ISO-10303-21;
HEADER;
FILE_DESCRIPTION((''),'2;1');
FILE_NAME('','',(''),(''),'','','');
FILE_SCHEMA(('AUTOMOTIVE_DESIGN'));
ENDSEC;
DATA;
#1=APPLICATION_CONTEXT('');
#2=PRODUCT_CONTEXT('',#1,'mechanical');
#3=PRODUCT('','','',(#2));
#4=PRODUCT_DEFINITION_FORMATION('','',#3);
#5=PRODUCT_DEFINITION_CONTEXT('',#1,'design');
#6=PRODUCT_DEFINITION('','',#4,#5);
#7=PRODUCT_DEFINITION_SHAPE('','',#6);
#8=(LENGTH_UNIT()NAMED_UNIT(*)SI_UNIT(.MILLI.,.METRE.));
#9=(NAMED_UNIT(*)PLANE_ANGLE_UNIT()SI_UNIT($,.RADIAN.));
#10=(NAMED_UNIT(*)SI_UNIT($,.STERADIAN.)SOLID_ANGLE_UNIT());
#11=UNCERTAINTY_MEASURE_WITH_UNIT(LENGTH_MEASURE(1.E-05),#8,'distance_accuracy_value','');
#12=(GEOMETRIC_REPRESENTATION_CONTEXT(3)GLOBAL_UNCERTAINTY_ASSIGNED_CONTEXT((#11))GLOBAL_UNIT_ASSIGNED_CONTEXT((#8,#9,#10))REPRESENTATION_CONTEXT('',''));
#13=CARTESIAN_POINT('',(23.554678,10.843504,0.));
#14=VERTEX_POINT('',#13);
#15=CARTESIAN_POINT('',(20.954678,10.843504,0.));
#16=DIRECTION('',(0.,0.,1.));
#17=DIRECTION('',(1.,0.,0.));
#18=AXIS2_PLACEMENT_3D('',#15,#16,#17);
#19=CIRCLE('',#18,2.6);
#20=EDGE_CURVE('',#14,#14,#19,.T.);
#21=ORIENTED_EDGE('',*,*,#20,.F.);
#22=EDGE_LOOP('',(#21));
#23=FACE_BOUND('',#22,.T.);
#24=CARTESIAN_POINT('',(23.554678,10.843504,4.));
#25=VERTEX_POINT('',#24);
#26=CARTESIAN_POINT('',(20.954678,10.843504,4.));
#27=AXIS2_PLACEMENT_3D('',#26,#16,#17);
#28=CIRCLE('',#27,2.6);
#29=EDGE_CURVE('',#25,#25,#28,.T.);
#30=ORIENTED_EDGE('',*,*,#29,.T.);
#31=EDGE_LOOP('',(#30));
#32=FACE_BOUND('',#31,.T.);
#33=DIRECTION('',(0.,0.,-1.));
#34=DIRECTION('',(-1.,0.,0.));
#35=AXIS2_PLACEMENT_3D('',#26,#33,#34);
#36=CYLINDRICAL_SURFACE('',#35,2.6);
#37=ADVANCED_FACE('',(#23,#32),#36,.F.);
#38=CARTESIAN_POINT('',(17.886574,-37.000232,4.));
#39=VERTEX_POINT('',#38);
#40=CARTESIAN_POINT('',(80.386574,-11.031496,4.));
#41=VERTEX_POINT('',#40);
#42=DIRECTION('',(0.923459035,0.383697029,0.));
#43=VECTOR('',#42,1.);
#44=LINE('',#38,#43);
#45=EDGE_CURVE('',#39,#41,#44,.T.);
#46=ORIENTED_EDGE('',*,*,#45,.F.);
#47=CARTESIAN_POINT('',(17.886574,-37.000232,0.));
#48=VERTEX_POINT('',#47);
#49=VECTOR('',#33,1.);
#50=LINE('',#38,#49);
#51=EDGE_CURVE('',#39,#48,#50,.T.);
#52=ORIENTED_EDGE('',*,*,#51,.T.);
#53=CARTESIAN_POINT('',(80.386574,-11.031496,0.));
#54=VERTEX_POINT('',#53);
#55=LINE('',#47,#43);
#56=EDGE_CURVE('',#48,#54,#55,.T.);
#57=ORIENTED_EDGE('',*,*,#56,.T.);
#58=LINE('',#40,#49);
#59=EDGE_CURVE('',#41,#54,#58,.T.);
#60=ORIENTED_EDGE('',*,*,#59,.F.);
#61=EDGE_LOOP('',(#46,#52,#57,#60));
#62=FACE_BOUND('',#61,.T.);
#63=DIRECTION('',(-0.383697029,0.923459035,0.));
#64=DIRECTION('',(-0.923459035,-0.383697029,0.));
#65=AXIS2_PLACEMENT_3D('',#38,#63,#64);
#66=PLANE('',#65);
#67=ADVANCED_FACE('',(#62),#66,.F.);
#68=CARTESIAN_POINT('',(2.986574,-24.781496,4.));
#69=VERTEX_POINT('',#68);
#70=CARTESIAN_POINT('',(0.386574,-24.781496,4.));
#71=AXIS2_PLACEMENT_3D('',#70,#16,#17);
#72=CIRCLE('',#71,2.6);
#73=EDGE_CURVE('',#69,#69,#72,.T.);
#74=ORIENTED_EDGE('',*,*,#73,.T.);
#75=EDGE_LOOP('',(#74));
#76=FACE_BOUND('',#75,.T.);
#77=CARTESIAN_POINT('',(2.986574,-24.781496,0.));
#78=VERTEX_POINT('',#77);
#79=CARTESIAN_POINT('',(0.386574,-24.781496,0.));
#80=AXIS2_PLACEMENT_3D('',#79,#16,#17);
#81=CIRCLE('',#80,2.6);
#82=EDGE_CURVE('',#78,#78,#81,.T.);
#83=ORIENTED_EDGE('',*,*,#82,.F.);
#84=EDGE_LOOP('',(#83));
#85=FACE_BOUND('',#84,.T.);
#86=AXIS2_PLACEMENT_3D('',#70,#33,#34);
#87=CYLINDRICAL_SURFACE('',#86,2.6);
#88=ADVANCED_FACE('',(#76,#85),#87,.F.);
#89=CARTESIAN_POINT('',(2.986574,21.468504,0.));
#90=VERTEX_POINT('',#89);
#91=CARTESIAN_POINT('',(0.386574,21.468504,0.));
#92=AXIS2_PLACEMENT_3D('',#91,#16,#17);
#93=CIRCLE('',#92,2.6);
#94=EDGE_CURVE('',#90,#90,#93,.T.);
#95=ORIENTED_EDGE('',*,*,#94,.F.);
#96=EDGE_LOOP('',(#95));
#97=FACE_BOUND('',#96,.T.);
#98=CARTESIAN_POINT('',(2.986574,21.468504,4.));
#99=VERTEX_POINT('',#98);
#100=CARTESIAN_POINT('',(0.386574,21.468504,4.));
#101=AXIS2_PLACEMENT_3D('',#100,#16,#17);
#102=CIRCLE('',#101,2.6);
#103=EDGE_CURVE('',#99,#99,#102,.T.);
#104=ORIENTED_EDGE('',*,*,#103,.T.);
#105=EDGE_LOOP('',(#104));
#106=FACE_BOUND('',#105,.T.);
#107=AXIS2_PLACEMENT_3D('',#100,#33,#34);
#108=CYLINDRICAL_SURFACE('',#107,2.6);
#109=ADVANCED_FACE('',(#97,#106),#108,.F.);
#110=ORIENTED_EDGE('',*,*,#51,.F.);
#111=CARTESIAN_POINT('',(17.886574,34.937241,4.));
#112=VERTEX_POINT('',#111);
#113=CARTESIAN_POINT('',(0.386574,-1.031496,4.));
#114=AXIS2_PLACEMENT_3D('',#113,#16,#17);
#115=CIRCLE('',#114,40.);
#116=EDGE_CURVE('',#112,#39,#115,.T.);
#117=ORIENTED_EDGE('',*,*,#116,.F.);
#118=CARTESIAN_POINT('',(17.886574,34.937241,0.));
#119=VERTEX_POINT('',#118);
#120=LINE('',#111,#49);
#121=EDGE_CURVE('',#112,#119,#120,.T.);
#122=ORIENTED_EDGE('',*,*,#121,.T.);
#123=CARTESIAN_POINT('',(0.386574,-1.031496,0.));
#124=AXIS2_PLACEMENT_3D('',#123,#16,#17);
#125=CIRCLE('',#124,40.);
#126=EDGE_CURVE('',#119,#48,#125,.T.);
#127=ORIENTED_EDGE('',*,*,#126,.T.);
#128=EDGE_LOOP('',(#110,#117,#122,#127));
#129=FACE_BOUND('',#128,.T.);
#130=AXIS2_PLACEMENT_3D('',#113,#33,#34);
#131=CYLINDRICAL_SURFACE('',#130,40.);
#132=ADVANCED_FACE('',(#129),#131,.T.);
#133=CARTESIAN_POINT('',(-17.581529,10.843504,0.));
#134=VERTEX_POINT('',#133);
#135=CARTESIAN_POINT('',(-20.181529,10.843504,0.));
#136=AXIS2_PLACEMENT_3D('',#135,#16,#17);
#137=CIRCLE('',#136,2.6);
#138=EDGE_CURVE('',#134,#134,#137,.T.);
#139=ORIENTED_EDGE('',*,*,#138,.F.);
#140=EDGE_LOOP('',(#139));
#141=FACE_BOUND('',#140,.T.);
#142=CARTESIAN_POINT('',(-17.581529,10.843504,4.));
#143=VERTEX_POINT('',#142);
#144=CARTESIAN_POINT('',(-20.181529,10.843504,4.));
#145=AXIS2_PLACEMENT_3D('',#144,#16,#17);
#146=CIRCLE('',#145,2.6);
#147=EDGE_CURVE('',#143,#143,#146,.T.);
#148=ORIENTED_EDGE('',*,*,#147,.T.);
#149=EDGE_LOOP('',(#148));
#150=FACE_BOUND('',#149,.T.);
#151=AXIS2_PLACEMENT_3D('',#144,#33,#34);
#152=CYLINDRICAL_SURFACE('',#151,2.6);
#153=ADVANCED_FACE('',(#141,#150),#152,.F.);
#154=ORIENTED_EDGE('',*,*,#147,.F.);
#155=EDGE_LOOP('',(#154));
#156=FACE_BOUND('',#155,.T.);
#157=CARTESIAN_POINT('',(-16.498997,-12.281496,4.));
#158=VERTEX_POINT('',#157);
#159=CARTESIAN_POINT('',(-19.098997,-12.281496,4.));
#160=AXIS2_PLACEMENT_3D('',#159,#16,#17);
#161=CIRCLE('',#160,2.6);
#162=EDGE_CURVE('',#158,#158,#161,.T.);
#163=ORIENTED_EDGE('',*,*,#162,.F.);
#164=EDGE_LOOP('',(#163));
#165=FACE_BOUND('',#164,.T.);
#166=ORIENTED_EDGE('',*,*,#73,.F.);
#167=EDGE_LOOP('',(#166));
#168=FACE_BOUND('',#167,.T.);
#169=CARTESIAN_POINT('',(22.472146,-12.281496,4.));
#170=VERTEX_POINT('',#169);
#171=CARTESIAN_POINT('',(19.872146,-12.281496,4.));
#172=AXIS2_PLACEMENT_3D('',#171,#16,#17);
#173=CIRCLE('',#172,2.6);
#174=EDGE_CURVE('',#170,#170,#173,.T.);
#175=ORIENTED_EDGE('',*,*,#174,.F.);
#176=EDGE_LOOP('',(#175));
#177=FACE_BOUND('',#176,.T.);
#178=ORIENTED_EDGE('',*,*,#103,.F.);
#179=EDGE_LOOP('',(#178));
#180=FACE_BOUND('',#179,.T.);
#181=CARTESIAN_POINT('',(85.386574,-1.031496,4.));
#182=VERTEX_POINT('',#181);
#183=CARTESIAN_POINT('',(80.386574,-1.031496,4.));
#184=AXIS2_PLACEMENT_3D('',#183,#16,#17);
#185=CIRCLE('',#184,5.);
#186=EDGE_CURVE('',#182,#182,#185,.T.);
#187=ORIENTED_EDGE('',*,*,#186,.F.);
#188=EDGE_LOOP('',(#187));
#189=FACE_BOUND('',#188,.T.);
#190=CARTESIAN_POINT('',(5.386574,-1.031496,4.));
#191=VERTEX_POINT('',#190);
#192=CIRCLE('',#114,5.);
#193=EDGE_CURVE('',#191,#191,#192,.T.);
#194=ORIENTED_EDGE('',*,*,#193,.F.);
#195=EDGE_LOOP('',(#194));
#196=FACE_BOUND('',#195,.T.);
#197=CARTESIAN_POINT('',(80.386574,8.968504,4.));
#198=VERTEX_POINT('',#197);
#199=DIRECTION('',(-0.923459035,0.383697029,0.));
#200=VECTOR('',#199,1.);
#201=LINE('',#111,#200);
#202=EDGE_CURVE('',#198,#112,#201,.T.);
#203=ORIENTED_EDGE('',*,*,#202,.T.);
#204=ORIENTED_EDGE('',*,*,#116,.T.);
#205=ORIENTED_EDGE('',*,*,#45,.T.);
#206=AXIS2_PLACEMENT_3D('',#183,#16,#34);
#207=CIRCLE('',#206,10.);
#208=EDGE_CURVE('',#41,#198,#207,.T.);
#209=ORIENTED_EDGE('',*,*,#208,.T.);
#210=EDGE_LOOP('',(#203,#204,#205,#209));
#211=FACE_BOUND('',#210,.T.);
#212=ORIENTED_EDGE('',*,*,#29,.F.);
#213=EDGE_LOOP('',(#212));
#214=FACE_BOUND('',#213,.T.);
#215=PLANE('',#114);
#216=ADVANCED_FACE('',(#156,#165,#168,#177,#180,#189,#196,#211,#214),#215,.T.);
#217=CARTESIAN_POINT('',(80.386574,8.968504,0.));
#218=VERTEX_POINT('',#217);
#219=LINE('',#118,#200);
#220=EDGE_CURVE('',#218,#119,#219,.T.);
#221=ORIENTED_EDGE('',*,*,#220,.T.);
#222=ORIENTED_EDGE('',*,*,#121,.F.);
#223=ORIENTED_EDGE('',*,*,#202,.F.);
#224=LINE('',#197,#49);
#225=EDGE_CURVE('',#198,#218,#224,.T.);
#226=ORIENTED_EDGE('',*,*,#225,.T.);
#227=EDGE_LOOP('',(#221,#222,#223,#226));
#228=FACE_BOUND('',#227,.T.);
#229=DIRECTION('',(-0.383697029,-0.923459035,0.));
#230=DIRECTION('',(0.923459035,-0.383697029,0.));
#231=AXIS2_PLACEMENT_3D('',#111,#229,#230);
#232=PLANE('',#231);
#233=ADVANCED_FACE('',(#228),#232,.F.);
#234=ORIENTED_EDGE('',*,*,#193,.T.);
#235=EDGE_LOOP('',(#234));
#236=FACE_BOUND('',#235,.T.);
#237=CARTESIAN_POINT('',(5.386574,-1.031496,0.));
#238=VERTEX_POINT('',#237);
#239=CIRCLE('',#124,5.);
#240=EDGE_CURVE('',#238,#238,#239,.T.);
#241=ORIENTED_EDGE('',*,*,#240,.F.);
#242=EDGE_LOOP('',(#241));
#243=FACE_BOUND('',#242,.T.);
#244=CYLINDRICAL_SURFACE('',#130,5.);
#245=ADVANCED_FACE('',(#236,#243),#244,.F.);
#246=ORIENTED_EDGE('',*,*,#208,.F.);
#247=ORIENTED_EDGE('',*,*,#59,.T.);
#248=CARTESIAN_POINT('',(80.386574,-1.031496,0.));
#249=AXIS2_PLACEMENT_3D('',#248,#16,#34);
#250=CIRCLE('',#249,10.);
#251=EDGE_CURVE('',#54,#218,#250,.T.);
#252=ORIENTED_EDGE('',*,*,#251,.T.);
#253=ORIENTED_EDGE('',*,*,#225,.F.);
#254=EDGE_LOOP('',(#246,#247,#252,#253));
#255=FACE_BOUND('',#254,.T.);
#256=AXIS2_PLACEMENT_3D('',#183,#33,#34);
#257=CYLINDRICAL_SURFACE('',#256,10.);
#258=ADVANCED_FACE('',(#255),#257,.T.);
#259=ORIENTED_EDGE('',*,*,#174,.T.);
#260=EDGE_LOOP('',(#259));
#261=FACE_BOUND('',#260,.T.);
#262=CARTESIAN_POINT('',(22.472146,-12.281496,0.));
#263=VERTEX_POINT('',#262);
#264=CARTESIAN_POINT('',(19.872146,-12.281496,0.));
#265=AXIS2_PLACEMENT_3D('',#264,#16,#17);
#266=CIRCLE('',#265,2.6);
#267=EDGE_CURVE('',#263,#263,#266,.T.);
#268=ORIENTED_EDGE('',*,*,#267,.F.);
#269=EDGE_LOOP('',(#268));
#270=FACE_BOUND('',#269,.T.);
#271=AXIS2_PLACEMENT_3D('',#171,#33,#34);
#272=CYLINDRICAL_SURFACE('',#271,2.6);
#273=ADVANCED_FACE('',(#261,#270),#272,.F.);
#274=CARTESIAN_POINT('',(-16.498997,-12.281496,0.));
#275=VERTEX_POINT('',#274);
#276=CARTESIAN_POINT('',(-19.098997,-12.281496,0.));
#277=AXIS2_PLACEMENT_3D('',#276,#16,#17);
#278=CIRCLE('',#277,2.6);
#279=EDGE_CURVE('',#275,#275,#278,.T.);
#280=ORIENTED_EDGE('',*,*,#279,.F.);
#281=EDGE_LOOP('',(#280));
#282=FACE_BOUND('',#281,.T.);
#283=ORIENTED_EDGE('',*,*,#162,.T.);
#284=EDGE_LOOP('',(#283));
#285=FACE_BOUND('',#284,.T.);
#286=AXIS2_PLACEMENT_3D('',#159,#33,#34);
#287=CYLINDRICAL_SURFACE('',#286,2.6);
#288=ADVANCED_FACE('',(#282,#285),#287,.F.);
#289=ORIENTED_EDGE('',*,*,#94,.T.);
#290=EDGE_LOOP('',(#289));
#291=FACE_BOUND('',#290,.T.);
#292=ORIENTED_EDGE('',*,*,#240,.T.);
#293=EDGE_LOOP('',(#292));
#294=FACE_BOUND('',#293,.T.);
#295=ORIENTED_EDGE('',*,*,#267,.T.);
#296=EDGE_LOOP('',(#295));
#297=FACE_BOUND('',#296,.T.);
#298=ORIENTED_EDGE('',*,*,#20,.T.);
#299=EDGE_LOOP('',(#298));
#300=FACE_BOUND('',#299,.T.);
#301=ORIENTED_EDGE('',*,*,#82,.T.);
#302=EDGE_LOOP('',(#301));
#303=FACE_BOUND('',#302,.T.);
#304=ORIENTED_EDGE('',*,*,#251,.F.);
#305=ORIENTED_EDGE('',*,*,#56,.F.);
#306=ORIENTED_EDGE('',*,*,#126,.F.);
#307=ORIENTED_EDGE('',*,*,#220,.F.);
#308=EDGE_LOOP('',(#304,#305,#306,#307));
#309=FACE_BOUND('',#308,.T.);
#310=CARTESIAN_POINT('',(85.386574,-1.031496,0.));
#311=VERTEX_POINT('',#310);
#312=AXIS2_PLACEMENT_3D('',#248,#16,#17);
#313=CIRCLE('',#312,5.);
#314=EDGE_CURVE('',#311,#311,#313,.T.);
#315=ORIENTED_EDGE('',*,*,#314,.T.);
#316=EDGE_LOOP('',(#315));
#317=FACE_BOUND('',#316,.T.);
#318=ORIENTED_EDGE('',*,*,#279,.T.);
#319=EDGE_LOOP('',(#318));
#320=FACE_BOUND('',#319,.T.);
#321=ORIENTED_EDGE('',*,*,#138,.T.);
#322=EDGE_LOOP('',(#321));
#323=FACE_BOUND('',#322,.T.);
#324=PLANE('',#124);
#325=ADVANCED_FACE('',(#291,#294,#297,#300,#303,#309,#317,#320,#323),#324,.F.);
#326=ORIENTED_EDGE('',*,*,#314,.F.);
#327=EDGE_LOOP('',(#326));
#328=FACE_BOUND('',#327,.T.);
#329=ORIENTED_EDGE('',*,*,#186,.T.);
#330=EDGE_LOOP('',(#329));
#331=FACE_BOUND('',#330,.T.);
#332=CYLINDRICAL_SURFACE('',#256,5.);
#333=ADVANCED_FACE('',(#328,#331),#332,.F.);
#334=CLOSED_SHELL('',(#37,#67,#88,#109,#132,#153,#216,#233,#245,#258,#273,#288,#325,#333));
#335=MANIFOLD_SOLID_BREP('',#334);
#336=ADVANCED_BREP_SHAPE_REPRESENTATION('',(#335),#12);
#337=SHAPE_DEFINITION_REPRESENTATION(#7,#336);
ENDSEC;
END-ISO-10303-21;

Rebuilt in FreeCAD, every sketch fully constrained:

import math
import FreeCAD as App
import Part
import Sketcher

V = App.Vector

doc = App.newDocument("Part")
params = doc.addObject("Spreadsheet::Sheet", "Params")
for row, (alias, value) in enumerate([
    ("sketch1_diameter", "10 mm"),
    ("sketch1_radius", "40 mm"),
    ("sketch1_radius2", "10 mm"),
    ("sketch1_diameter2", "5.2 mm"),
    ("pad1_length", "4 mm"),
], start=1):
    params.set(f"A{row}", alias)
    params.set(f"B{row}", "=" + value)
    params.setAlias(f"B{row}", alias)

body = doc.addObject("PartDesign::Body", "Body")

# Sketch on XY plane
sketch1 = body.newObject("Sketcher::SketchObject", "Sketch")
sketch1.AttachmentSupport = (doc.getObject("XY_Plane"), [""])
sketch1.MapMode = "FlatFace"
sketch1.addGeometry(Part.LineSegment(V(80.4, 9, 0), V(17.9, 34.9, 0)), False)
sketch1.addGeometry(Part.ArcOfCircle(Part.Circle(V(0.4, -1, 0), V(0, 0, 1), 40), math.radians(64), math.radians(296)), False)
sketch1.addGeometry(Part.LineSegment(V(17.9, -37, 0), V(80.4, -11, 0)), False)
sketch1.addGeometry(Part.ArcOfCircle(Part.Circle(V(80.4, -1, 0), V(0, 0, 1), 10), math.radians(-90), math.radians(90)), False)
sketch1.addGeometry(Part.Circle(V(0.4, -24.8, 0), V(0, 0, 1), 2.6), False)
sketch1.addGeometry(Part.Circle(V(19.9, -12.3, 0), V(0, 0, 1), 2.6), False)
sketch1.addGeometry(Part.Circle(V(-19.1, -12.3, 0), V(0, 0, 1), 2.6), False)
sketch1.addGeometry(Part.Circle(V(80.4, -1, 0), V(0, 0, 1), 5), False)
sketch1.addGeometry(Part.Circle(V(21, 10.8, 0), V(0, 0, 1), 2.6), False)
sketch1.addGeometry(Part.Circle(V(0.4, -1, 0), V(0, 0, 1), 5), False)
sketch1.addGeometry(Part.Circle(V(-20.2, 10.8, 0), V(0, 0, 1), 2.6), False)
sketch1.addGeometry(Part.Circle(V(0.4, 21.5, 0), V(0, 0, 1), 2.6), False)
sketch1.addConstraint(Sketcher.Constraint("Coincident", 0, 2, 1, 1))
sketch1.addConstraint(Sketcher.Constraint("Coincident", 1, 2, 2, 1))
sketch1.addConstraint(Sketcher.Constraint("Coincident", 2, 2, 3, 1))
sketch1.addConstraint(Sketcher.Constraint("Coincident", 3, 2, 0, 1))
sketch1.addConstraint(Sketcher.Constraint("Coincident", 7, 3, 3, 3))
sketch1.addConstraint(Sketcher.Constraint("Coincident", 9, 3, 1, 3))
sketch1.addConstraint(Sketcher.Constraint("Equal", 4, 5))
sketch1.addConstraint(Sketcher.Constraint("Equal", 5, 6))
sketch1.addConstraint(Sketcher.Constraint("Equal", 6, 8))
sketch1.addConstraint(Sketcher.Constraint("Equal", 7, 9))
sketch1.addConstraint(Sketcher.Constraint("Equal", 8, 10))
sketch1.addConstraint(Sketcher.Constraint("Equal", 10, 11))
sketch1.addConstraint(Sketcher.Constraint("Horizontal", 1, 3, 3, 3))
sketch1.addConstraint(Sketcher.Constraint("Horizontal", 5, 3, 6, 3))
sketch1.addConstraint(Sketcher.Constraint("Horizontal", 8, 3, 10, 3))
sketch1.addConstraint(Sketcher.Constraint("Vertical", 1, 3, 4, 3))
sketch1.addConstraint(Sketcher.Constraint("Vertical", 9, 3, 11, 3))
sketch1.addConstraint(Sketcher.Constraint("Vertical", 0, 2, 1, 2))
sketch1.addConstraint(Sketcher.Constraint("Vertical", 7, 3, 2, 2))
sketch1.addConstraint(Sketcher.Constraint("Vertical", 2, 2, 3, 2))
sketch1.addConstraint(Sketcher.Constraint("Diameter", 7, 10.0))
sketch1.addConstraint(Sketcher.Constraint("Radius", 1, 40.0))
sketch1.addConstraint(Sketcher.Constraint("Radius", 3, 10.0))
sketch1.addConstraint(Sketcher.Constraint("Diameter", 4, 5.2))
sketch1.addConstraint(Sketcher.Constraint("DistanceX", 1, 3, 3, 3, 80.0))
sketch1.addConstraint(Sketcher.Constraint("DistanceY", 4, 3, 5, 3, 12.5))
sketch1.addConstraint(Sketcher.Constraint("DistanceY", 1, 3, 11, 3, 22.5))
sketch1.addConstraint(Sketcher.Constraint("DistanceX", 11, 3, 0, 2, 17.5))
sketch1.addConstraint(Sketcher.Constraint("DistanceY", 4, 3, 1, 3, 23.75))
sketch1.addConstraint(Sketcher.Constraint("DistanceY", 5, 3, 8, 3, 23.125))
sketch1.addConstraint(Sketcher.Constraint("DistanceX", 10, 3, -1, 1, 20.181529))
sketch1.addConstraint(Sketcher.Constraint("DistanceY", -1, 1, 0, 2, 34.937241))
sketch1.addConstraint(Sketcher.Constraint("DistanceX", 1, 3, 5, 3, 19.485572))
sketch1.addConstraint(Sketcher.Constraint("DistanceX", 6, 3, 1, 3, 19.485572))
sketch1.addConstraint(Sketcher.Constraint("DistanceX", 5, 3, 8, 3, 1.082532))
sketch1.addConstraint(Sketcher.Constraint("DistanceX", 10, 3, 6, 3, 1.082532))
sketch1.setExpression("Constraints[20]", "Params.sketch1_diameter")
sketch1.setExpression("Constraints[21]", "Params.sketch1_radius")
sketch1.setExpression("Constraints[22]", "Params.sketch1_radius2")
sketch1.setExpression("Constraints[23]", "Params.sketch1_diameter2")
pad1 = body.newObject("PartDesign::Pad", "Pad")
pad1.Profile = sketch1
pad1.setExpression("Length", "Params.pad1_length")

doc.recompute()
